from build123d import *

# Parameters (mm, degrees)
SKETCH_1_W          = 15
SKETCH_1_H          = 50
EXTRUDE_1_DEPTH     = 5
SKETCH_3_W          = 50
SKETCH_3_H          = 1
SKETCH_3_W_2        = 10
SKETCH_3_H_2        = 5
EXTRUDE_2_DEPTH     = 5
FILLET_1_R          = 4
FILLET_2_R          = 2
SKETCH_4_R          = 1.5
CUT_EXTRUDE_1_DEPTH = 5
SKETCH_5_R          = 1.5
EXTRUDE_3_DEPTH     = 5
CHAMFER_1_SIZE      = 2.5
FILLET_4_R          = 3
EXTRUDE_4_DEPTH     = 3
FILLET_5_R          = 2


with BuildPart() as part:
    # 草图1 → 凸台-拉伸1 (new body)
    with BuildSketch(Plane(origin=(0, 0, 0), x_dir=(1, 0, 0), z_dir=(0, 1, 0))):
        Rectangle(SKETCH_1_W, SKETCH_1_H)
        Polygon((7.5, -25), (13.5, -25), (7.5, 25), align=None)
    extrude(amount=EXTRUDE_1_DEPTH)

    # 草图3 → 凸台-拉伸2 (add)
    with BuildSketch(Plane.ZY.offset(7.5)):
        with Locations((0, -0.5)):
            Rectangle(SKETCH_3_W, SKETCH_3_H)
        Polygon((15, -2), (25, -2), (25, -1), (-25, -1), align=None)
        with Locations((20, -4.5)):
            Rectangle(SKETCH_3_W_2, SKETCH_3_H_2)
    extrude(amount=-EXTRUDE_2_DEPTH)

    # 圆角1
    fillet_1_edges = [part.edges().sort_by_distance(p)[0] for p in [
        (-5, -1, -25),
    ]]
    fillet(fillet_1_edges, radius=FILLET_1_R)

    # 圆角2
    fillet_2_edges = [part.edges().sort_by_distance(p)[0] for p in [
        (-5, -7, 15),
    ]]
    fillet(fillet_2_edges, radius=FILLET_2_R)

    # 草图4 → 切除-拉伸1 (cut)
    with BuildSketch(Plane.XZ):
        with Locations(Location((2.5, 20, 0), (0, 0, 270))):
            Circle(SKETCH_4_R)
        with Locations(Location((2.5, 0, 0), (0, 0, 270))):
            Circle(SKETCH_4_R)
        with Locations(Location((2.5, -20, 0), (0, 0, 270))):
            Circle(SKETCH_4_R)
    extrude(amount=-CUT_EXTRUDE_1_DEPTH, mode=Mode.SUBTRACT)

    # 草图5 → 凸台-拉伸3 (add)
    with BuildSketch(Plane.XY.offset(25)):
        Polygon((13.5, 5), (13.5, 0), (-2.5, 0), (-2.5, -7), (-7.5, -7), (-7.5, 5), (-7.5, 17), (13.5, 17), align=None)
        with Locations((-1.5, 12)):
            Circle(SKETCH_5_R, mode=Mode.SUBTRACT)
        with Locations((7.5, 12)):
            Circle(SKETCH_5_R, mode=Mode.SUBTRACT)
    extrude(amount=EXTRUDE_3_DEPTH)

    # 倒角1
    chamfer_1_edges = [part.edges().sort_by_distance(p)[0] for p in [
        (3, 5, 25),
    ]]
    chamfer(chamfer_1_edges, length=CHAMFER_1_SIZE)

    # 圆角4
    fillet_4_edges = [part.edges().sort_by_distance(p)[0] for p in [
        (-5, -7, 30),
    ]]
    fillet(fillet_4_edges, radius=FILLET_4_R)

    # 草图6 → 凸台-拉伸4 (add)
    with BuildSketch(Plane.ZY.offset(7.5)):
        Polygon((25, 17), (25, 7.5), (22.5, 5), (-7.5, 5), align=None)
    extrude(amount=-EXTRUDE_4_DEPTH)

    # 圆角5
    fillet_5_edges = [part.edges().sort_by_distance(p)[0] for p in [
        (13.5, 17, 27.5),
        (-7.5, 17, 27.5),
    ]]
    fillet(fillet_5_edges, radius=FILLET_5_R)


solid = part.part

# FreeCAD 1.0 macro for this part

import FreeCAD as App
import Part
import Sketcher

V = App.Vector
Q = App.Units.Quantity


def edges_at(feature, points):
    """Names of the edges that pass closest to the given points."""
    edges = feature.Shape.Edges
    near = lambda p: min(range(len(edges)), key=lambda i: edges[i].distToShape(Part.Vertex(*p))[0])
    return sorted({f"Edge{near(p) + 1}" for p in points})


def add_polygon(sketch, points):
    """Adds a closed chain of lines whose ends are joined by coincident constraints."""
    first, n = sketch.GeometryCount, len(points)
    for a, b in zip(points, points[1:] + points[:1]):
        sketch.addGeometry(Part.LineSegment(App.Vector(*a, 0), App.Vector(*b, 0)), False)
    for i in range(n):
        sketch.addConstraint(Sketcher.Constraint("Coincident", first + i, 2, first + (i + 1) % n, 1))

doc = App.newDocument("Part")
params = doc.addObject("Spreadsheet::Sheet", "Params")
for row, (alias, value) in enumerate([
    ("sketch1_width", "21 mm"),
    ("sketch1_width2", "15 mm"),
    ("sketch1_height", "50 mm"),
    ("pad1_length", "5 mm"),
    ("sketch2_width", "1 mm"),
    ("sketch2_width2", "5 mm"),
    ("sketch2_width3", "7 mm"),
    ("sketch2_height", "10 mm"),
    ("sketch2_height2", "50 mm"),
    ("pad2_length", "5 mm"),
    ("fillet_radius", "4 mm"),
    ("fillet2_radius", "2 mm"),
    ("sketch3_diameter", "3 mm"),
    ("pocket1_length", "5 mm"),
    ("sketch4_diameter", "3 mm"),
    ("sketch4_width", "21 mm"),
    ("sketch4_width2", "5 mm"),
    ("sketch4_height", "17 mm"),
    ("sketch4_height2", "24 mm"),
    ("pad3_length", "5 mm"),
    ("chamfer_size", "2.5 mm"),
    ("fillet3_radius", "3 mm"),
    ("sketch5_height", "30 mm"),
    ("sketch5_width", "9.5 mm"),
    ("pad4_length", "3 mm"),
    ("fillet4_radius", "2 mm"),
], start=1):
    params.set(f"A{row}", alias)
    params.set(f"B{row}", "=" + value)
    params.setAlias(f"B{row}", alias)

body = doc.addObject("PartDesign::Body", "Body")

# Sketch on XZ plane
sketch1 = doc.addObject("Sketcher::SketchObject", "Sketch")
body.addObject(sketch1)
sketch1.AttachmentSupport = (doc.XZ_Plane, [""])
sketch1.MapMode = "FlatFace"
add_polygon(sketch1, [(-8, -25), (-8, 25), (14, 25), (8, -25)])  # lines 0-3
sketch1.addConstraint(Sketcher.Constraint("Vertical", 0))
sketch1.addConstraint(Sketcher.Constraint("Horizontal", 1))
sketch1.addConstraint(Sketcher.Constraint("Horizontal", 3))
sketch1.addConstraint(Sketcher.Constraint("Symmetric", 0, 2, 2, 2, -1, 1))
sketch1.addConstraint(Sketcher.Constraint("DistanceX", 1, 1, 1, 2, Q("21 mm")))
sketch1.addConstraint(Sketcher.Constraint("DistanceX", 3, 2, 3, 1, Q("15 mm")))
sketch1.addConstraint(Sketcher.Constraint("DistanceY", 0, 1, 0, 2, Q("50 mm")))
sketch1.setExpression("Constraints[8]", "Params.sketch1_width")
sketch1.setExpression("Constraints[9]", "Params.sketch1_width2")
sketch1.setExpression("Constraints[10]", "Params.sketch1_height")
pad1 = doc.addObject("PartDesign::Pad", "Pad")
body.addObject(pad1)
pad1.Profile = sketch1
pad1.setExpression("Length", "Params.pad1_length")
pad1.Reversed = True

# Sketch on YZ plane
sketch2 = doc.addObject("Sketcher::SketchObject", "Sketch001")
body.addObject(sketch2)
sketch2.AttachmentSupport = (doc.YZ_Plane, [""])
sketch2.MapMode = "FlatFace"
sketch2.AttachmentOffset = App.Placement(V(0, 0, -7.5), App.Rotation())
add_polygon(sketch2, [(0, -25), (-1, -25), (-2, 15), (-7, 15), (-7, 25), (0, 25)])  # lines 0-5
sketch2.addConstraint(Sketcher.Constraint("Horizontal", 0))
sketch2.addConstraint(Sketcher.Constraint("Horizontal", 2))
sketch2.addConstraint(Sketcher.Constraint("Vertical", 3))
sketch2.addConstraint(Sketcher.Constraint("Horizontal", 4))
sketch2.addConstraint(Sketcher.Constraint("Vertical", 5))
sketch2.addConstraint(Sketcher.Constraint("Symmetric", 4, 2, 5, 2, -1, 1))
sketch2.addConstraint(Sketcher.Constraint("DistanceX", 0, 2, 0, 1, Q("1 mm")))
sketch2.addConstraint(Sketcher.Constraint("DistanceX", 2, 2, 2, 1, Q("5 mm")))
sketch2.addConstraint(Sketcher.Constraint("DistanceX", 4, 1, 4, 2, Q("7 mm")))
sketch2.addConstraint(Sketcher.Constraint("DistanceY", 3, 1, 3, 2, Q("10 mm")))
sketch2.addConstraint(Sketcher.Constraint("DistanceY", 5, 2, 5, 1, Q("50 mm")))
sketch2.setExpression("Constraints[12]", "Params.sketch2_width")
sketch2.setExpression("Constraints[13]", "Params.sketch2_width2")
sketch2.setExpression("Constraints[14]", "Params.sketch2_width3")
sketch2.setExpression("Constraints[15]", "Params.sketch2_height")
sketch2.setExpression("Constraints[16]", "Params.sketch2_height2")
pad2 = doc.addObject("PartDesign::Pad", "Pad001")
body.addObject(pad2)
pad2.Profile = sketch2
pad2.setExpression("Length", "Params.pad2_length")
doc.recompute()

fillet = doc.addObject("PartDesign::Fillet", "Fillet")
body.addObject(fillet)
fillet.Base = (pad2, edges_at(pad2, [(-5, -1, -25)]))
fillet.setExpression("Radius", "Params.fillet_radius")
doc.recompute()

fillet2 = doc.addObject("PartDesign::Fillet", "Fillet001")
body.addObject(fillet2)
fillet2.Base = (fillet, edges_at(fillet, [(-5, -7, 15)]))
fillet2.setExpression("Radius", "Params.fillet2_radius")

# Sketch on XZ plane
sketch3 = doc.addObject("Sketcher::SketchObject", "Sketch002")
body.addObject(sketch3)
sketch3.AttachmentSupport = (doc.XZ_Plane, [""])
sketch3.MapMode = "FlatFace"
sketch3.addGeometry(Part.Circle(V(2.5, 20, 0), V(0, 0, 1), 1.5), False)
sketch3.addGeometry(Part.Circle(V(2.5, 0, 0), V(0, 0, 1), 1.5), False)
sketch3.addGeometry(Part.Circle(V(2.5, -20, 0), V(0, 0, 1), 1.5), False)
sketch3.addConstraint(Sketcher.Constraint("Equal", 0, 1))
sketch3.addConstraint(Sketcher.Constraint("Equal", 1, 2))
sketch3.addConstraint(Sketcher.Constraint("Symmetric", 0, 3, 2, 3, -1))
sketch3.addConstraint(Sketcher.Constraint("PointOnObject", 1, 3, -1))
sketch3.addConstraint(Sketcher.Constraint("Vertical", 0, 3, 1, 3))
sketch3.addConstraint(Sketcher.Constraint("Diameter", 0, Q("3 mm")))
sketch3.addConstraint(Sketcher.Constraint("DistanceY", -1, 1, 0, 3, Q("20 mm")))
sketch3.addConstraint(Sketcher.Constraint("DistanceX", -1, 1, 0, 3, Q("2.5 mm")))
sketch3.setExpression("Constraints[5]", "Params.sketch3_diameter")
pocket1 = doc.addObject("PartDesign::Pocket", "Pocket")
body.addObject(pocket1)
pocket1.Profile = sketch3
pocket1.setExpression("Length", "Params.pocket1_length")

# Sketch on XY plane
sketch4 = doc.addObject("Sketcher::SketchObject", "Sketch003")
body.addObject(sketch4)
sketch4.AttachmentSupport = (doc.XY_Plane, [""])
sketch4.MapMode = "FlatFace"
sketch4.AttachmentOffset = App.Placement(V(0, 0, 25), App.Rotation())
add_polygon(sketch4, [(13.5, 0), (13.5, 17), (-7.5, 17), (-7.5, -7), (-2.5, -7), (-2.5, 0)])  # lines 0-5
sketch4.addGeometry(Part.Circle(V(7.5, 12, 0), V(0, 0, 1), 1.5), False)  # 6
sketch4.addGeometry(Part.Circle(V(-1.5, 12, 0), V(0, 0, 1), 1.5), False)  # 7
sketch4.addConstraint(Sketcher.Constraint("Vertical", 0))
sketch4.addConstraint(Sketcher.Constraint("Horizontal", 1))
sketch4.addConstraint(Sketcher.Constraint("Vertical", 2))
sketch4.addConstraint(Sketcher.Constraint("Horizontal", 3))
sketch4.addConstraint(Sketcher.Constraint("Vertical", 4))
sketch4.addConstraint(Sketcher.Constraint("Horizontal", 5))
sketch4.addConstraint(Sketcher.Constraint("Equal", 6, 7))
sketch4.addConstraint(Sketcher.Constraint("PointOnObject", 4, 2, -1))
sketch4.addConstraint(Sketcher.Constraint("Horizontal", 6, 3, 7, 3))
sketch4.addConstraint(Sketcher.Constraint("Diameter", 6, Q("3 mm")))
sketch4.addConstraint(Sketcher.Constraint("DistanceX", 1, 2, 1, 1, Q("21 mm")))
sketch4.addConstraint(Sketcher.Constraint("DistanceX", 3, 1, 3, 2, Q("5 mm")))
sketch4.addConstraint(Sketcher.Constraint("DistanceY", 0, 1, 0, 2, Q("17 mm")))
sketch4.addConstraint(Sketcher.Constraint("DistanceY", 2, 2, 2, 1, Q("24 mm")))
sketch4.addConstraint(Sketcher.Constraint("DistanceY", -1, 1, 6, 3, Q("12 mm")))
sketch4.addConstraint(Sketcher.Constraint("DistanceX", 7, 3, 6, 3, Q("9 mm")))
sketch4.addConstraint(Sketcher.Constraint("DistanceX", 6, 3, 0, 2, Q("6 mm")))
sketch4.addConstraint(Sketcher.Constraint("DistanceX", -1, 1, 6, 3, Q("7.5 mm")))
sketch4.setExpression("Constraints[15]", "Params.sketch4_diameter")
sketch4.setExpression("Constraints[16]", "Params.sketch4_width")
sketch4.setExpression("Constraints[17]", "Params.sketch4_width2")
sketch4.setExpression("Constraints[18]", "Params.sketch4_height")
sketch4.setExpression("Constraints[19]", "Params.sketch4_height2")
pad3 = doc.addObject("PartDesign::Pad", "Pad002")
body.addObject(pad3)
pad3.Profile = sketch4
pad3.setExpression("Length", "Params.pad3_length")
doc.recompute()

chamfer = doc.addObject("PartDesign::Chamfer", "Chamfer")
body.addObject(chamfer)
chamfer.Base = (pad3, edges_at(pad3, [(3, 5, 25)]))
chamfer.setExpression("Size", "Params.chamfer_size")
doc.recompute()

fillet3 = doc.addObject("PartDesign::Fillet", "Fillet002")
body.addObject(fillet3)
fillet3.Base = (chamfer, edges_at(chamfer, [(-5, -7, 30)]))
fillet3.setExpression("Radius", "Params.fillet3_radius")

# Sketch on YZ plane
sketch5 = doc.addObject("Sketcher::SketchObject", "Sketch004")
body.addObject(sketch5)
sketch5.AttachmentSupport = (doc.YZ_Plane, [""])
sketch5.MapMode = "FlatFace"
sketch5.AttachmentOffset = App.Placement(V(0, 0, -7.5), App.Rotation())
add_polygon(sketch5, [(7.5, 25), (17, 25), (5, -7.5), (5, 22.5)])  # lines 0-3
sketch5.addConstraint(Sketcher.Constraint("Horizontal", 0))
sketch5.addConstraint(Sketcher.Constraint("Vertical", 2))
sketch5.addConstraint(Sketcher.Constraint("DistanceY", 2, 1, 2, 2, Q("30 mm")))
sketch5.addConstraint(Sketcher.Constraint("Angle", 3, Q("45 deg")))
sketch5.addConstraint(Sketcher.Constraint("DistanceX", 0, 1, 0, 2, Q("9.5 mm")))
sketch5.addConstraint(Sketcher.Constraint("DistanceX", -1, 1, 0, 2, Q("17 mm")))
sketch5.addConstraint(Sketcher.Constraint("DistanceY", -1, 1, 0, 2, Q("25 mm")))
sketch5.addConstraint(Sketcher.Constraint("DistanceX", -1, 1, 1, 2, Q("5 mm")))
sketch5.setExpression("Constraints[6]", "Params.sketch5_height")
sketch5.setExpression("Constraints[8]", "Params.sketch5_width")
pad4 = doc.addObject("PartDesign::Pad", "Pad003")
body.addObject(pad4)
pad4.Profile = sketch5
pad4.setExpression("Length", "Params.pad4_length")
doc.recompute()

fillet4 = doc.addObject("PartDesign::Fillet", "Fillet003")
body.addObject(fillet4)
fillet4.Base = (pad4, edges_at(pad4, [(13.5, 17, 27.5), (-7.5, 17, 27.5)]))
fillet4.setExpression("Radius", "Params.fillet4_radius")

doc.recompute()
